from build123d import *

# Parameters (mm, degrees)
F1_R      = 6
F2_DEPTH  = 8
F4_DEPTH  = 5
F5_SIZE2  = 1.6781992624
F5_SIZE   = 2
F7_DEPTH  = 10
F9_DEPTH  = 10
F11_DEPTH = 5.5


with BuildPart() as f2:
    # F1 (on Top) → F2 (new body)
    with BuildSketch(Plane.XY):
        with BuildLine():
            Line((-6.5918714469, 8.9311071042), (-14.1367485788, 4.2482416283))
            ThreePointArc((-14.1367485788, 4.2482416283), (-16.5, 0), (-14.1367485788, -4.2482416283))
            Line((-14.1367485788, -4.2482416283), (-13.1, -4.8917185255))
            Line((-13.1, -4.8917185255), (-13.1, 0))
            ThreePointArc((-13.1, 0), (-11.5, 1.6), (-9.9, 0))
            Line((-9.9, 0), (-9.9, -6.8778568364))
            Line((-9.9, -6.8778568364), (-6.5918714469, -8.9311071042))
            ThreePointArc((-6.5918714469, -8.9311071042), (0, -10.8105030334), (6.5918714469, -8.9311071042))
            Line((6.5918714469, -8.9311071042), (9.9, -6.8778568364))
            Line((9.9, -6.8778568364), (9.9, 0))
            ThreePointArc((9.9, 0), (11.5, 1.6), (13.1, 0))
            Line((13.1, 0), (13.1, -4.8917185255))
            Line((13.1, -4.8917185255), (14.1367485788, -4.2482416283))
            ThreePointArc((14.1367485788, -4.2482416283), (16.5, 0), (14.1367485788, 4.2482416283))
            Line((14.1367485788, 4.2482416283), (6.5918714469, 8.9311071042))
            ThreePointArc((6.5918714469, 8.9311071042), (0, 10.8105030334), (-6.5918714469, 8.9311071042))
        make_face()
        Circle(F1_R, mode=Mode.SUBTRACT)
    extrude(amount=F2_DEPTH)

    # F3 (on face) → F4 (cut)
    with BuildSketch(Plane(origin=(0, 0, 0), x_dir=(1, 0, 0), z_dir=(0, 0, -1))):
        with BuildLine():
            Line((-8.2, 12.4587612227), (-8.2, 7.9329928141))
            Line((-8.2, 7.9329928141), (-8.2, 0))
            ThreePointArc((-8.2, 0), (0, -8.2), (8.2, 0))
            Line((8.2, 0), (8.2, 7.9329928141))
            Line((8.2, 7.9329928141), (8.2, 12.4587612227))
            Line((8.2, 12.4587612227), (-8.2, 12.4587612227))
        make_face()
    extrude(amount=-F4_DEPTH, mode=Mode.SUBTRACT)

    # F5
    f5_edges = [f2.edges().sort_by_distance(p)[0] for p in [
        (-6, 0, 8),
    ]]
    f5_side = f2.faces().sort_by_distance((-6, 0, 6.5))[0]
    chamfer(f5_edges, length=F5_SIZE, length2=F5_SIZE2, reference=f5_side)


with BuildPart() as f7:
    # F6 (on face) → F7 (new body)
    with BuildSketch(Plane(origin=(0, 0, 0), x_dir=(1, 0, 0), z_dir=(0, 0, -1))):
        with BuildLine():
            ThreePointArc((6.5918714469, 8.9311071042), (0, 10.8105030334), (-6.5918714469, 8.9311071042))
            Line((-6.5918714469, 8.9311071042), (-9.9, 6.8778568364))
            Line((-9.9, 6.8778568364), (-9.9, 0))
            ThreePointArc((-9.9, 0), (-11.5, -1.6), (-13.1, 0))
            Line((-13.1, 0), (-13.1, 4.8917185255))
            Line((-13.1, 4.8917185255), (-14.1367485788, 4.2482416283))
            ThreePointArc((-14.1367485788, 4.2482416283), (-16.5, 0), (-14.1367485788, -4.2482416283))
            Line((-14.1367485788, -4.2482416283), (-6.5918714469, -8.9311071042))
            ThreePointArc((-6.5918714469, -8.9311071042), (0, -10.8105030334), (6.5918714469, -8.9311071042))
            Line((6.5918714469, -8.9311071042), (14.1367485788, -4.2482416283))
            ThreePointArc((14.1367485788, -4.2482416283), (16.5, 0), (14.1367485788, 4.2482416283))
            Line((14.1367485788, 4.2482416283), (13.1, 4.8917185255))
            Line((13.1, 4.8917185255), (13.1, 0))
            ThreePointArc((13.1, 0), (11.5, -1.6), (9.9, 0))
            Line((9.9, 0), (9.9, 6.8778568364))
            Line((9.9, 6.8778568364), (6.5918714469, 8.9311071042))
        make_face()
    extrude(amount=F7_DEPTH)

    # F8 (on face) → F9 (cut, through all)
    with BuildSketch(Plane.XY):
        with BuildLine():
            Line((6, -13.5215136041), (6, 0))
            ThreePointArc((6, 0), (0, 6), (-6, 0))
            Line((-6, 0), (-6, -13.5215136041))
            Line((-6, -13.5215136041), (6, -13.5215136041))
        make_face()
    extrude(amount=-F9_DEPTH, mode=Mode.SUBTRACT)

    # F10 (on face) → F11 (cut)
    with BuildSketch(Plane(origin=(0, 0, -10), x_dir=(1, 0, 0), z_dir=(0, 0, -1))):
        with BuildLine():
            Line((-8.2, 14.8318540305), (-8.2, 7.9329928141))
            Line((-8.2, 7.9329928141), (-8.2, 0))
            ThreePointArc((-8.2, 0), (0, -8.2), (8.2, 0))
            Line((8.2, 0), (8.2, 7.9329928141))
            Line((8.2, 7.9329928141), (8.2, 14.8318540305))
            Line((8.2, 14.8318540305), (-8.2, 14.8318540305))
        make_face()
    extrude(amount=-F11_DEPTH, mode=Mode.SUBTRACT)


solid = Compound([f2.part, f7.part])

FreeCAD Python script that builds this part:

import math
import FreeCAD as App
import Part
import Sketcher

V = App.Vector
Q = App.Units.Quantity


def edges_at(feature, points):
    """Names of the edges that pass closest to the given points."""
    edges = feature.Shape.Edges
    near = lambda p: min(range(len(edges)), key=lambda i: edges[i].distToShape(Part.Vertex(*p))[0])
    return sorted({f"Edge{near(p) + 1}" for p in points})

doc = App.newDocument("Part")
body = doc.addObject("PartDesign::Body", "Body")

# Sketch on XY plane
sketch1 = body.newObject("Sketcher::SketchObject", "Sketch")
sketch1.AttachmentSupport = (doc.getObject("XY_Plane"), [""])
sketch1.MapMode = "FlatFace"
sketch1.addGeometry(Part.LineSegment(V(-6.591871, 8.931107, 0), V(-14.136749, 4.248242, 0)), False)
sketch1.addGeometry(Part.ArcOfCircle(Part.Circle(V(-11.5, 0, 0), V(0, 0, 1), 5), math.radians(121.82656), math.radians(238.17344)), False)
sketch1.addGeometry(Part.LineSegment(V(-14.136749, -4.248242, 0), V(-13.1, -4.891719, 0)), False)
sketch1.addGeometry(Part.LineSegment(V(-13.1, -4.891719, 0), V(-13.1, 0, 0)), False)
sketch1.addGeometry(Part.ArcOfCircle(Part.Circle(V(-11.5, 0, 0), V(0, 0, 1), 1.6), math.radians(0), math.radians(180)), False)
sketch1.addGeometry(Part.LineSegment(V(-9.9, 0, 0), V(-9.9, -6.877857, 0)), False)
sketch1.addGeometry(Part.LineSegment(V(-9.9, -6.877857, 0), V(-6.591871, -8.931107, 0)), False)
sketch1.addGeometry(Part.ArcOfCircle(Part.Circle(V(0, 1.689497, 0), V(0, 0, 1), 12.5), math.radians(-121.82656), math.radians(-58.17344)), False)
sketch1.addGeometry(Part.LineSegment(V(6.591871, -8.931107, 0), V(9.9, -6.877857, 0)), False)
sketch1.addGeometry(Part.LineSegment(V(9.9, -6.877857, 0), V(9.9, 0, 0)), False)
sketch1.addGeometry(Part.ArcOfCircle(Part.Circle(V(11.5, 0, 0), V(0, 0, 1), 1.6), math.radians(0), math.radians(180)), False)
sketch1.addGeometry(Part.LineSegment(V(13.1, 0, 0), V(13.1, -4.891719, 0)), False)
sketch1.addGeometry(Part.LineSegment(V(13.1, -4.891719, 0), V(14.136749, -4.248242, 0)), False)
sketch1.addGeometry(Part.ArcOfCircle(Part.Circle(V(11.5, 0, 0), V(0, 0, 1), 5), math.radians(-58.17344), math.radians(58.17344)), False)
sketch1.addGeometry(Part.LineSegment(V(14.136749, 4.248242, 0), V(6.591871, 8.931107, 0)), False)
sketch1.addGeometry(Part.ArcOfCircle(Part.Circle(V(0, -1.689497, 0), V(0, 0, 1), 12.5), math.radians(58.17344), math.radians(121.82656)), False)
sketch1.addGeometry(Part.Circle(V(0, 0, 0), V(0, 0, 1), 6), False)
sketch1.addConstraint(Sketcher.Constraint("Tangent", 0, 2, 1, 1))
sketch1.addConstraint(Sketcher.Constraint("Tangent", 1, 2, 2, 1))
sketch1.addConstraint(Sketcher.Constraint("Coincident", 2, 2, 3, 1))
sketch1.addConstraint(Sketcher.Constraint("Tangent", 3, 2, 4, 2))
sketch1.addConstraint(Sketcher.Constraint("Tangent", 4, 1, 5, 1))
sketch1.addConstraint(Sketcher.Constraint("Coincident", 5, 2, 6, 1))
sketch1.addConstraint(Sketcher.Constraint("Tangent", 6, 2, 7, 1))
sketch1.addConstraint(Sketcher.Constraint("Tangent", 7, 2, 8, 1))
sketch1.addConstraint(Sketcher.Constraint("Coincident", 8, 2, 9, 1))
sketch1.addConstraint(Sketcher.Constraint("Tangent", 9, 2, 10, 2))
sketch1.addConstraint(Sketcher.Constraint("Tangent", 10, 1, 11, 1))
sketch1.addConstraint(Sketcher.Constraint("Coincident", 11, 2, 12, 1))
sketch1.addConstraint(Sketcher.Constraint("Tangent", 12, 2, 13, 1))
sketch1.addConstraint(Sketcher.Constraint("Tangent", 13, 2, 14, 1))
sketch1.addConstraint(Sketcher.Constraint("Tangent", 14, 2, 15, 1))
sketch1.addConstraint(Sketcher.Constraint("Tangent", 15, 2, 0, 1))
sketch1.addConstraint(Sketcher.Constraint("Vertical", 3))
sketch1.addConstraint(Sketcher.Constraint("Vertical", 5))
sketch1.addConstraint(Sketcher.Constraint("Vertical", 9))
sketch1.addConstraint(Sketcher.Constraint("Vertical", 11))
sketch1.addConstraint(Sketcher.Constraint("Coincident", 16, 3, -1, 1))
sketch1.addConstraint(Sketcher.Constraint("Coincident", 4, 3, 1, 3))
sketch1.addConstraint(Sketcher.Constraint("Coincident", 13, 3, 10, 3))
sketch1.addConstraint(Sketcher.Constraint("Equal", 4, 10))
sketch1.addConstraint(Sketcher.Constraint("Equal", 1, 13))
sketch1.addConstraint(Sketcher.Constraint("Equal", 7, 15))
sketch1.addConstraint(Sketcher.Constraint("Symmetric", 1, 3, 10, 3, -1, 1))
sketch1.addConstraint(Sketcher.Constraint("Symmetric", 7, 3, 15, 3, -1, 1))
sketch1.addConstraint(Sketcher.Constraint("Symmetric", 6, 2, 7, 2, -2))
sketch1.addConstraint(Sketcher.Constraint("Symmetric", 1, 2, 12, 2, -2))
sketch1.addConstraint(Sketcher.Constraint("Parallel", 2, 6))
sketch1.addConstraint(Sketcher.Constraint("Parallel", 0, 8))
sketch1.addConstraint(Sketcher.Constraint("Diameter", 16, Q("12 mm")))
sketch1.addConstraint(Sketcher.Constraint("Radius", 1, Q("5 mm")))
sketch1.addConstraint(Sketcher.Constraint("Radius", 4, Q("1.6 mm")))
sketch1.addConstraint(Sketcher.Constraint("Radius", 7, Q("12.5 mm")))
sketch1.addConstraint(Sketcher.Constraint("DistanceX", 1, 3, 10, 3, Q("23 mm")))
sketch1.addConstraint(Sketcher.Constraint("Distance", 0, Q("8.88 mm")))
pad1 = body.newObject("PartDesign::Pad", "Pad")
pad1.Profile = sketch1
pad1.Length = 8

# Sketch on XY plane
sketch2 = body.newObject("Sketcher::SketchObject", "Sketch001")
sketch2.AttachmentSupport = (doc.getObject("XY_Plane"), [""])
sketch2.MapMode = "FlatFace"
sketch2.addGeometry(Part.LineSegment(V(-8.2, -12.458761, 0), V(-8.2, 0, 0)), False)
sketch2.addGeometry(Part.ArcOfCircle(Part.Circle(V(0, 0, 0), V(0, 0, 1), 8.2), math.radians(0), math.radians(180)), False)
sketch2.addGeometry(Part.LineSegment(V(8.2, 0, 0), V(8.2, -12.458761, 0)), False)
sketch2.addGeometry(Part.LineSegment(V(8.2, -12.458761, 0), V(-8.2, -12.458761, 0)), False)
sketch2.addConstraint(Sketcher.Constraint("Tangent", 0, 2, 1, 2))
sketch2.addConstraint(Sketcher.Constraint("Tangent", 1, 1, 2, 1))
sketch2.addConstraint(Sketcher.Constraint("Coincident", 2, 2, 3, 1))
sketch2.addConstraint(Sketcher.Constraint("Coincident", 3, 2, 0, 1))
sketch2.addConstraint(Sketcher.Constraint("Vertical", 0))
sketch2.addConstraint(Sketcher.Constraint("Vertical", 2))
sketch2.addConstraint(Sketcher.Constraint("Horizontal", 3))
sketch2.addConstraint(Sketcher.Constraint("Coincident", 1, 3, -1, 1))
sketch2.addConstraint(Sketcher.Constraint("Radius", 1, Q("8.2 mm")))
sketch2.addConstraint(Sketcher.Constraint("DistanceY", 0, 1, 0, 2, Q("12.458761 mm")))
pocket1 = body.newObject("PartDesign::Pocket", "Pocket")
pocket1.Profile = sketch2
pocket1.Length = 5
pocket1.Reversed = True
doc.recompute()

chamfer = body.newObject("PartDesign::Chamfer", "Chamfer")
chamfer.Base = (pocket1, edges_at(pocket1, [(-6, 0, 8)]))
chamfer.ChamferType = "Two distances"
chamfer.Size = 2
chamfer.Size2 = 1.678199
chamfer.FlipDirection = True
body2 = doc.addObject("PartDesign::Body", "Body001")

# Sketch on XY plane
sketch3 = body2.newObject("Sketcher::SketchObject", "Sketch002")
sketch3.AttachmentSupport = (doc.getObject("XY_Plane001"), [""])
sketch3.MapMode = "FlatFace"
sketch3.addGeometry(Part.ArcOfCircle(Part.Circle(V(0, 1.689497, 0), V(0, 0, 1), 12.5), math.radians(-121.82656), math.radians(-58.17344)), False)
sketch3.addGeometry(Part.LineSegment(V(-6.591871, -8.931107, 0), V(-9.9, -6.877857, 0)), False)
sketch3.addGeometry(Part.LineSegment(V(-9.9, -6.877857, 0), V(-9.9, 0, 0)), False)
sketch3.addGeometry(Part.ArcOfCircle(Part.Circle(V(-11.5, 0, 0), V(0, 0, 1), 1.6), math.radians(0), math.radians(180)), False)
sketch3.addGeometry(Part.LineSegment(V(-13.1, 0, 0), V(-13.1, -4.891719, 0)), False)
sketch3.addGeometry(Part.LineSegment(V(-13.1, -4.891719, 0), V(-14.136749, -4.248242, 0)), False)
sketch3.addGeometry(Part.ArcOfCircle(Part.Circle(V(-11.5, 0, 0), V(0, 0, 1), 5), math.radians(121.82656), math.radians(238.17344)), False)
sketch3.addGeometry(Part.LineSegment(V(-14.136749, 4.248242, 0), V(-6.591871, 8.931107, 0)), False)
sketch3.addGeometry(Part.ArcOfCircle(Part.Circle(V(0, -1.689497, 0), V(0, 0, 1), 12.5), math.radians(58.17344), math.radians(121.82656)), False)
sketch3.addGeometry(Part.LineSegment(V(6.591871, 8.931107, 0), V(14.136749, 4.248242, 0)), False)
sketch3.addGeometry(Part.ArcOfCircle(Part.Circle(V(11.5, 0, 0), V(0, 0, 1), 5), math.radians(-58.17344), math.radians(58.17344)), False)
sketch3.addGeometry(Part.LineSegment(V(14.136749, -4.248242, 0), V(13.1, -4.891719, 0)), False)
sketch3.addGeometry(Part.LineSegment(V(13.1, -4.891719, 0), V(13.1, 0, 0)), False)
sketch3.addGeometry(Part.ArcOfCircle(Part.Circle(V(11.5, 0, 0), V(0, 0, 1), 1.6), math.radians(0), math.radians(180)), False)
sketch3.addGeometry(Part.LineSegment(V(9.9, 0, 0), V(9.9, -6.877857, 0)), False)
sketch3.addGeometry(Part.LineSegment(V(9.9, -6.877857, 0), V(6.591871, -8.931107, 0)), False)
sketch3.addConstraint(Sketcher.Constraint("Tangent", 0, 1, 1, 1))
sketch3.addConstraint(Sketcher.Constraint("Coincident", 1, 2, 2, 1))
sketch3.addConstraint(Sketcher.Constraint("Tangent", 2, 2, 3, 1))
sketch3.addConstraint(Sketcher.Constraint("Tangent", 3, 2, 4, 1))
sketch3.addConstraint(Sketcher.Constraint("Coincident", 4, 2, 5, 1))
sketch3.addConstraint(Sketcher.Constraint("Tangent", 5, 2, 6, 2))
sketch3.addConstraint(Sketcher.Constraint("Tangent", 6, 1, 7, 1))
sketch3.addConstraint(Sketcher.Constraint("Tangent", 7, 2, 8, 2))
sketch3.addConstraint(Sketcher.Constraint("Tangent", 8, 1, 9, 1))
sketch3.addConstraint(Sketcher.Constraint("Tangent", 9, 2, 10, 2))
sketch3.addConstraint(Sketcher.Constraint("Tangent", 10, 1, 11, 1))
sketch3.addConstraint(Sketcher.Constraint("Coincident", 11, 2, 12, 1))
sketch3.addConstraint(Sketcher.Constraint("Tangent", 12, 2, 13, 1))
sketch3.addConstraint(Sketcher.Constraint("Tangent", 13, 2, 14, 1))
sketch3.addConstraint(Sketcher.Constraint("Coincident", 14, 2, 15, 1))
sketch3.addConstraint(Sketcher.Constraint("Tangent", 15, 2, 0, 2))
sketch3.addConstraint(Sketcher.Constraint("Vertical", 2))
sketch3.addConstraint(Sketcher.Constraint("Vertical", 4))
sketch3.addConstraint(Sketcher.Constraint("Vertical", 12))
sketch3.addConstraint(Sketcher.Constraint("Vertical", 14))
sketch3.addConstraint(Sketcher.Constraint("Coincident", 6, 3, 3, 3))
sketch3.addConstraint(Sketcher.Constraint("Coincident", 13, 3, 10, 3))
sketch3.addConstraint(Sketcher.Constraint("Equal", 0, 8))
sketch3.addConstraint(Sketcher.Constraint("Equal", 6, 10))
sketch3.addConstraint(Sketcher.Constraint("Equal", 3, 13))
sketch3.addConstraint(Sketcher.Constraint("Symmetric", 0, 3, 8, 3, -1, 1))
sketch3.addConstraint(Sketcher.Constraint("Symmetric", 3, 3, 10, 3, -1, 1))
sketch3.addConstraint(Sketcher.Constraint("Symmetric", 7, 2, 8, 1, -2))
sketch3.addConstraint(Sketcher.Constraint("Parallel", 1, 5))
sketch3.addConstraint(Sketcher.Constraint("Parallel", 5, 9))
sketch3.addConstraint(Sketcher.Constraint("Parallel", 7, 11))
sketch3.addConstraint(Sketcher.Constraint("Parallel", 11, 15))
sketch3.addConstraint(Sketcher.Constraint("Radius", 6, Q("5 mm")))
sketch3.addConstraint(Sketcher.Constraint("Radius", 0, Q("12.5 mm")))
sketch3.addConstraint(Sketcher.Constraint("Radius", 3, Q("1.6 mm")))
sketch3.addConstraint(Sketcher.Constraint("DistanceX", 3, 3, 10, 3, Q("23 mm")))
sketch3.addConstraint(Sketcher.Constraint("Distance", 7, Q("8.88 mm")))
pad2 = body2.newObject("PartDesign::Pad", "Pad001")
pad2.Profile = sketch3
pad2.Length = 10
pad2.Reversed = True

# Sketch on XY plane
sketch4 = body2.newObject("Sketcher::SketchObject", "Sketch003")
sketch4.AttachmentSupport = (doc.getObject("XY_Plane001"), [""])
sketch4.MapMode = "FlatFace"
sketch4.addGeometry(Part.LineSegment(V(6, -13.521514, 0), V(6, 0, 0)), False)
sketch4.addGeometry(Part.ArcOfCircle(Part.Circle(V(0, 0, 0), V(0, 0, 1), 6), math.radians(0), math.radians(180)), False)
sketch4.addGeometry(Part.LineSegment(V(-6, 0, 0), V(-6, -13.521514, 0)), False)
sketch4.addGeometry(Part.LineSegment(V(-6, -13.521514, 0), V(6, -13.521514, 0)), False)
sketch4.addConstraint(Sketcher.Constraint("Tangent", 0, 2, 1, 1))
sketch4.addConstraint(Sketcher.Constraint("Tangent", 1, 2, 2, 1))
sketch4.addConstraint(Sketcher.Constraint("Coincident", 2, 2, 3, 1))
sketch4.addConstraint(Sketcher.Constraint("Coincident", 3, 2, 0, 1))
sketch4.addConstraint(Sketcher.Constraint("Vertical", 0))
sketch4.addConstraint(Sketcher.Constraint("Vertical", 2))
sketch4.addConstraint(Sketcher.Constraint("Horizontal", 3))
sketch4.addConstraint(Sketcher.Constraint("Coincident", 1, 3, -1, 1))
sketch4.addConstraint(Sketcher.Constraint("Radius", 1, Q("6 mm")))
sketch4.addConstraint(Sketcher.Constraint("DistanceY", 0, 1, 0, 2, Q("13.521514 mm")))
pocket2 = body2.newObject("PartDesign::Pocket", "Pocket001")
pocket2.Profile = sketch4
pocket2.Type = "ThroughAll"

# Sketch on XY plane
sketch5 = body2.newObject("Sketcher::SketchObject", "Sketch004")
sketch5.AttachmentSupport = (doc.getObject("XY_Plane001"), [""])
sketch5.MapMode = "FlatFace"
sketch5.AttachmentOffset = App.Placement(V(0, 0, -10), App.Rotation())
sketch5.addGeometry(Part.LineSegment(V(-8.2, -14.831854, 0), V(-8.2, 0, 0)), False)
sketch5.addGeometry(Part.ArcOfCircle(Part.Circle(V(0, 0, 0), V(0, 0, 1), 8.2), math.radians(0), math.radians(180)), False)
sketch5.addGeometry(Part.LineSegment(V(8.2, 0, 0), V(8.2, -14.831854, 0)), False)
sketch5.addGeometry(Part.LineSegment(V(8.2, -14.831854, 0), V(-8.2, -14.831854, 0)), False)
sketch5.addConstraint(Sketcher.Constraint("Tangent", 0, 2, 1, 2))
sketch5.addConstraint(Sketcher.Constraint("Tangent", 1, 1, 2, 1))
sketch5.addConstraint(Sketcher.Constraint("Coincident", 2, 2, 3, 1))
sketch5.addConstraint(Sketcher.Constraint("Coincident", 3, 2, 0, 1))
sketch5.addConstraint(Sketcher.Constraint("Vertical", 0))
sketch5.addConstraint(Sketcher.Constraint("Vertical", 2))
sketch5.addConstraint(Sketcher.Constraint("Horizontal", 3))
sketch5.addConstraint(Sketcher.Constraint("Coincident", 1, 3, -1, 1))
sketch5.addConstraint(Sketcher.Constraint("Radius", 1, Q("8.2 mm")))
sketch5.addConstraint(Sketcher.Constraint("DistanceY", 0, 1, 0, 2, Q("14.831854 mm")))
pocket3 = body2.newObject("PartDesign::Pocket", "Pocket002")
pocket3.Profile = sketch5
pocket3.Length = 5.5
pocket3.Reversed = True

doc.recompute()
